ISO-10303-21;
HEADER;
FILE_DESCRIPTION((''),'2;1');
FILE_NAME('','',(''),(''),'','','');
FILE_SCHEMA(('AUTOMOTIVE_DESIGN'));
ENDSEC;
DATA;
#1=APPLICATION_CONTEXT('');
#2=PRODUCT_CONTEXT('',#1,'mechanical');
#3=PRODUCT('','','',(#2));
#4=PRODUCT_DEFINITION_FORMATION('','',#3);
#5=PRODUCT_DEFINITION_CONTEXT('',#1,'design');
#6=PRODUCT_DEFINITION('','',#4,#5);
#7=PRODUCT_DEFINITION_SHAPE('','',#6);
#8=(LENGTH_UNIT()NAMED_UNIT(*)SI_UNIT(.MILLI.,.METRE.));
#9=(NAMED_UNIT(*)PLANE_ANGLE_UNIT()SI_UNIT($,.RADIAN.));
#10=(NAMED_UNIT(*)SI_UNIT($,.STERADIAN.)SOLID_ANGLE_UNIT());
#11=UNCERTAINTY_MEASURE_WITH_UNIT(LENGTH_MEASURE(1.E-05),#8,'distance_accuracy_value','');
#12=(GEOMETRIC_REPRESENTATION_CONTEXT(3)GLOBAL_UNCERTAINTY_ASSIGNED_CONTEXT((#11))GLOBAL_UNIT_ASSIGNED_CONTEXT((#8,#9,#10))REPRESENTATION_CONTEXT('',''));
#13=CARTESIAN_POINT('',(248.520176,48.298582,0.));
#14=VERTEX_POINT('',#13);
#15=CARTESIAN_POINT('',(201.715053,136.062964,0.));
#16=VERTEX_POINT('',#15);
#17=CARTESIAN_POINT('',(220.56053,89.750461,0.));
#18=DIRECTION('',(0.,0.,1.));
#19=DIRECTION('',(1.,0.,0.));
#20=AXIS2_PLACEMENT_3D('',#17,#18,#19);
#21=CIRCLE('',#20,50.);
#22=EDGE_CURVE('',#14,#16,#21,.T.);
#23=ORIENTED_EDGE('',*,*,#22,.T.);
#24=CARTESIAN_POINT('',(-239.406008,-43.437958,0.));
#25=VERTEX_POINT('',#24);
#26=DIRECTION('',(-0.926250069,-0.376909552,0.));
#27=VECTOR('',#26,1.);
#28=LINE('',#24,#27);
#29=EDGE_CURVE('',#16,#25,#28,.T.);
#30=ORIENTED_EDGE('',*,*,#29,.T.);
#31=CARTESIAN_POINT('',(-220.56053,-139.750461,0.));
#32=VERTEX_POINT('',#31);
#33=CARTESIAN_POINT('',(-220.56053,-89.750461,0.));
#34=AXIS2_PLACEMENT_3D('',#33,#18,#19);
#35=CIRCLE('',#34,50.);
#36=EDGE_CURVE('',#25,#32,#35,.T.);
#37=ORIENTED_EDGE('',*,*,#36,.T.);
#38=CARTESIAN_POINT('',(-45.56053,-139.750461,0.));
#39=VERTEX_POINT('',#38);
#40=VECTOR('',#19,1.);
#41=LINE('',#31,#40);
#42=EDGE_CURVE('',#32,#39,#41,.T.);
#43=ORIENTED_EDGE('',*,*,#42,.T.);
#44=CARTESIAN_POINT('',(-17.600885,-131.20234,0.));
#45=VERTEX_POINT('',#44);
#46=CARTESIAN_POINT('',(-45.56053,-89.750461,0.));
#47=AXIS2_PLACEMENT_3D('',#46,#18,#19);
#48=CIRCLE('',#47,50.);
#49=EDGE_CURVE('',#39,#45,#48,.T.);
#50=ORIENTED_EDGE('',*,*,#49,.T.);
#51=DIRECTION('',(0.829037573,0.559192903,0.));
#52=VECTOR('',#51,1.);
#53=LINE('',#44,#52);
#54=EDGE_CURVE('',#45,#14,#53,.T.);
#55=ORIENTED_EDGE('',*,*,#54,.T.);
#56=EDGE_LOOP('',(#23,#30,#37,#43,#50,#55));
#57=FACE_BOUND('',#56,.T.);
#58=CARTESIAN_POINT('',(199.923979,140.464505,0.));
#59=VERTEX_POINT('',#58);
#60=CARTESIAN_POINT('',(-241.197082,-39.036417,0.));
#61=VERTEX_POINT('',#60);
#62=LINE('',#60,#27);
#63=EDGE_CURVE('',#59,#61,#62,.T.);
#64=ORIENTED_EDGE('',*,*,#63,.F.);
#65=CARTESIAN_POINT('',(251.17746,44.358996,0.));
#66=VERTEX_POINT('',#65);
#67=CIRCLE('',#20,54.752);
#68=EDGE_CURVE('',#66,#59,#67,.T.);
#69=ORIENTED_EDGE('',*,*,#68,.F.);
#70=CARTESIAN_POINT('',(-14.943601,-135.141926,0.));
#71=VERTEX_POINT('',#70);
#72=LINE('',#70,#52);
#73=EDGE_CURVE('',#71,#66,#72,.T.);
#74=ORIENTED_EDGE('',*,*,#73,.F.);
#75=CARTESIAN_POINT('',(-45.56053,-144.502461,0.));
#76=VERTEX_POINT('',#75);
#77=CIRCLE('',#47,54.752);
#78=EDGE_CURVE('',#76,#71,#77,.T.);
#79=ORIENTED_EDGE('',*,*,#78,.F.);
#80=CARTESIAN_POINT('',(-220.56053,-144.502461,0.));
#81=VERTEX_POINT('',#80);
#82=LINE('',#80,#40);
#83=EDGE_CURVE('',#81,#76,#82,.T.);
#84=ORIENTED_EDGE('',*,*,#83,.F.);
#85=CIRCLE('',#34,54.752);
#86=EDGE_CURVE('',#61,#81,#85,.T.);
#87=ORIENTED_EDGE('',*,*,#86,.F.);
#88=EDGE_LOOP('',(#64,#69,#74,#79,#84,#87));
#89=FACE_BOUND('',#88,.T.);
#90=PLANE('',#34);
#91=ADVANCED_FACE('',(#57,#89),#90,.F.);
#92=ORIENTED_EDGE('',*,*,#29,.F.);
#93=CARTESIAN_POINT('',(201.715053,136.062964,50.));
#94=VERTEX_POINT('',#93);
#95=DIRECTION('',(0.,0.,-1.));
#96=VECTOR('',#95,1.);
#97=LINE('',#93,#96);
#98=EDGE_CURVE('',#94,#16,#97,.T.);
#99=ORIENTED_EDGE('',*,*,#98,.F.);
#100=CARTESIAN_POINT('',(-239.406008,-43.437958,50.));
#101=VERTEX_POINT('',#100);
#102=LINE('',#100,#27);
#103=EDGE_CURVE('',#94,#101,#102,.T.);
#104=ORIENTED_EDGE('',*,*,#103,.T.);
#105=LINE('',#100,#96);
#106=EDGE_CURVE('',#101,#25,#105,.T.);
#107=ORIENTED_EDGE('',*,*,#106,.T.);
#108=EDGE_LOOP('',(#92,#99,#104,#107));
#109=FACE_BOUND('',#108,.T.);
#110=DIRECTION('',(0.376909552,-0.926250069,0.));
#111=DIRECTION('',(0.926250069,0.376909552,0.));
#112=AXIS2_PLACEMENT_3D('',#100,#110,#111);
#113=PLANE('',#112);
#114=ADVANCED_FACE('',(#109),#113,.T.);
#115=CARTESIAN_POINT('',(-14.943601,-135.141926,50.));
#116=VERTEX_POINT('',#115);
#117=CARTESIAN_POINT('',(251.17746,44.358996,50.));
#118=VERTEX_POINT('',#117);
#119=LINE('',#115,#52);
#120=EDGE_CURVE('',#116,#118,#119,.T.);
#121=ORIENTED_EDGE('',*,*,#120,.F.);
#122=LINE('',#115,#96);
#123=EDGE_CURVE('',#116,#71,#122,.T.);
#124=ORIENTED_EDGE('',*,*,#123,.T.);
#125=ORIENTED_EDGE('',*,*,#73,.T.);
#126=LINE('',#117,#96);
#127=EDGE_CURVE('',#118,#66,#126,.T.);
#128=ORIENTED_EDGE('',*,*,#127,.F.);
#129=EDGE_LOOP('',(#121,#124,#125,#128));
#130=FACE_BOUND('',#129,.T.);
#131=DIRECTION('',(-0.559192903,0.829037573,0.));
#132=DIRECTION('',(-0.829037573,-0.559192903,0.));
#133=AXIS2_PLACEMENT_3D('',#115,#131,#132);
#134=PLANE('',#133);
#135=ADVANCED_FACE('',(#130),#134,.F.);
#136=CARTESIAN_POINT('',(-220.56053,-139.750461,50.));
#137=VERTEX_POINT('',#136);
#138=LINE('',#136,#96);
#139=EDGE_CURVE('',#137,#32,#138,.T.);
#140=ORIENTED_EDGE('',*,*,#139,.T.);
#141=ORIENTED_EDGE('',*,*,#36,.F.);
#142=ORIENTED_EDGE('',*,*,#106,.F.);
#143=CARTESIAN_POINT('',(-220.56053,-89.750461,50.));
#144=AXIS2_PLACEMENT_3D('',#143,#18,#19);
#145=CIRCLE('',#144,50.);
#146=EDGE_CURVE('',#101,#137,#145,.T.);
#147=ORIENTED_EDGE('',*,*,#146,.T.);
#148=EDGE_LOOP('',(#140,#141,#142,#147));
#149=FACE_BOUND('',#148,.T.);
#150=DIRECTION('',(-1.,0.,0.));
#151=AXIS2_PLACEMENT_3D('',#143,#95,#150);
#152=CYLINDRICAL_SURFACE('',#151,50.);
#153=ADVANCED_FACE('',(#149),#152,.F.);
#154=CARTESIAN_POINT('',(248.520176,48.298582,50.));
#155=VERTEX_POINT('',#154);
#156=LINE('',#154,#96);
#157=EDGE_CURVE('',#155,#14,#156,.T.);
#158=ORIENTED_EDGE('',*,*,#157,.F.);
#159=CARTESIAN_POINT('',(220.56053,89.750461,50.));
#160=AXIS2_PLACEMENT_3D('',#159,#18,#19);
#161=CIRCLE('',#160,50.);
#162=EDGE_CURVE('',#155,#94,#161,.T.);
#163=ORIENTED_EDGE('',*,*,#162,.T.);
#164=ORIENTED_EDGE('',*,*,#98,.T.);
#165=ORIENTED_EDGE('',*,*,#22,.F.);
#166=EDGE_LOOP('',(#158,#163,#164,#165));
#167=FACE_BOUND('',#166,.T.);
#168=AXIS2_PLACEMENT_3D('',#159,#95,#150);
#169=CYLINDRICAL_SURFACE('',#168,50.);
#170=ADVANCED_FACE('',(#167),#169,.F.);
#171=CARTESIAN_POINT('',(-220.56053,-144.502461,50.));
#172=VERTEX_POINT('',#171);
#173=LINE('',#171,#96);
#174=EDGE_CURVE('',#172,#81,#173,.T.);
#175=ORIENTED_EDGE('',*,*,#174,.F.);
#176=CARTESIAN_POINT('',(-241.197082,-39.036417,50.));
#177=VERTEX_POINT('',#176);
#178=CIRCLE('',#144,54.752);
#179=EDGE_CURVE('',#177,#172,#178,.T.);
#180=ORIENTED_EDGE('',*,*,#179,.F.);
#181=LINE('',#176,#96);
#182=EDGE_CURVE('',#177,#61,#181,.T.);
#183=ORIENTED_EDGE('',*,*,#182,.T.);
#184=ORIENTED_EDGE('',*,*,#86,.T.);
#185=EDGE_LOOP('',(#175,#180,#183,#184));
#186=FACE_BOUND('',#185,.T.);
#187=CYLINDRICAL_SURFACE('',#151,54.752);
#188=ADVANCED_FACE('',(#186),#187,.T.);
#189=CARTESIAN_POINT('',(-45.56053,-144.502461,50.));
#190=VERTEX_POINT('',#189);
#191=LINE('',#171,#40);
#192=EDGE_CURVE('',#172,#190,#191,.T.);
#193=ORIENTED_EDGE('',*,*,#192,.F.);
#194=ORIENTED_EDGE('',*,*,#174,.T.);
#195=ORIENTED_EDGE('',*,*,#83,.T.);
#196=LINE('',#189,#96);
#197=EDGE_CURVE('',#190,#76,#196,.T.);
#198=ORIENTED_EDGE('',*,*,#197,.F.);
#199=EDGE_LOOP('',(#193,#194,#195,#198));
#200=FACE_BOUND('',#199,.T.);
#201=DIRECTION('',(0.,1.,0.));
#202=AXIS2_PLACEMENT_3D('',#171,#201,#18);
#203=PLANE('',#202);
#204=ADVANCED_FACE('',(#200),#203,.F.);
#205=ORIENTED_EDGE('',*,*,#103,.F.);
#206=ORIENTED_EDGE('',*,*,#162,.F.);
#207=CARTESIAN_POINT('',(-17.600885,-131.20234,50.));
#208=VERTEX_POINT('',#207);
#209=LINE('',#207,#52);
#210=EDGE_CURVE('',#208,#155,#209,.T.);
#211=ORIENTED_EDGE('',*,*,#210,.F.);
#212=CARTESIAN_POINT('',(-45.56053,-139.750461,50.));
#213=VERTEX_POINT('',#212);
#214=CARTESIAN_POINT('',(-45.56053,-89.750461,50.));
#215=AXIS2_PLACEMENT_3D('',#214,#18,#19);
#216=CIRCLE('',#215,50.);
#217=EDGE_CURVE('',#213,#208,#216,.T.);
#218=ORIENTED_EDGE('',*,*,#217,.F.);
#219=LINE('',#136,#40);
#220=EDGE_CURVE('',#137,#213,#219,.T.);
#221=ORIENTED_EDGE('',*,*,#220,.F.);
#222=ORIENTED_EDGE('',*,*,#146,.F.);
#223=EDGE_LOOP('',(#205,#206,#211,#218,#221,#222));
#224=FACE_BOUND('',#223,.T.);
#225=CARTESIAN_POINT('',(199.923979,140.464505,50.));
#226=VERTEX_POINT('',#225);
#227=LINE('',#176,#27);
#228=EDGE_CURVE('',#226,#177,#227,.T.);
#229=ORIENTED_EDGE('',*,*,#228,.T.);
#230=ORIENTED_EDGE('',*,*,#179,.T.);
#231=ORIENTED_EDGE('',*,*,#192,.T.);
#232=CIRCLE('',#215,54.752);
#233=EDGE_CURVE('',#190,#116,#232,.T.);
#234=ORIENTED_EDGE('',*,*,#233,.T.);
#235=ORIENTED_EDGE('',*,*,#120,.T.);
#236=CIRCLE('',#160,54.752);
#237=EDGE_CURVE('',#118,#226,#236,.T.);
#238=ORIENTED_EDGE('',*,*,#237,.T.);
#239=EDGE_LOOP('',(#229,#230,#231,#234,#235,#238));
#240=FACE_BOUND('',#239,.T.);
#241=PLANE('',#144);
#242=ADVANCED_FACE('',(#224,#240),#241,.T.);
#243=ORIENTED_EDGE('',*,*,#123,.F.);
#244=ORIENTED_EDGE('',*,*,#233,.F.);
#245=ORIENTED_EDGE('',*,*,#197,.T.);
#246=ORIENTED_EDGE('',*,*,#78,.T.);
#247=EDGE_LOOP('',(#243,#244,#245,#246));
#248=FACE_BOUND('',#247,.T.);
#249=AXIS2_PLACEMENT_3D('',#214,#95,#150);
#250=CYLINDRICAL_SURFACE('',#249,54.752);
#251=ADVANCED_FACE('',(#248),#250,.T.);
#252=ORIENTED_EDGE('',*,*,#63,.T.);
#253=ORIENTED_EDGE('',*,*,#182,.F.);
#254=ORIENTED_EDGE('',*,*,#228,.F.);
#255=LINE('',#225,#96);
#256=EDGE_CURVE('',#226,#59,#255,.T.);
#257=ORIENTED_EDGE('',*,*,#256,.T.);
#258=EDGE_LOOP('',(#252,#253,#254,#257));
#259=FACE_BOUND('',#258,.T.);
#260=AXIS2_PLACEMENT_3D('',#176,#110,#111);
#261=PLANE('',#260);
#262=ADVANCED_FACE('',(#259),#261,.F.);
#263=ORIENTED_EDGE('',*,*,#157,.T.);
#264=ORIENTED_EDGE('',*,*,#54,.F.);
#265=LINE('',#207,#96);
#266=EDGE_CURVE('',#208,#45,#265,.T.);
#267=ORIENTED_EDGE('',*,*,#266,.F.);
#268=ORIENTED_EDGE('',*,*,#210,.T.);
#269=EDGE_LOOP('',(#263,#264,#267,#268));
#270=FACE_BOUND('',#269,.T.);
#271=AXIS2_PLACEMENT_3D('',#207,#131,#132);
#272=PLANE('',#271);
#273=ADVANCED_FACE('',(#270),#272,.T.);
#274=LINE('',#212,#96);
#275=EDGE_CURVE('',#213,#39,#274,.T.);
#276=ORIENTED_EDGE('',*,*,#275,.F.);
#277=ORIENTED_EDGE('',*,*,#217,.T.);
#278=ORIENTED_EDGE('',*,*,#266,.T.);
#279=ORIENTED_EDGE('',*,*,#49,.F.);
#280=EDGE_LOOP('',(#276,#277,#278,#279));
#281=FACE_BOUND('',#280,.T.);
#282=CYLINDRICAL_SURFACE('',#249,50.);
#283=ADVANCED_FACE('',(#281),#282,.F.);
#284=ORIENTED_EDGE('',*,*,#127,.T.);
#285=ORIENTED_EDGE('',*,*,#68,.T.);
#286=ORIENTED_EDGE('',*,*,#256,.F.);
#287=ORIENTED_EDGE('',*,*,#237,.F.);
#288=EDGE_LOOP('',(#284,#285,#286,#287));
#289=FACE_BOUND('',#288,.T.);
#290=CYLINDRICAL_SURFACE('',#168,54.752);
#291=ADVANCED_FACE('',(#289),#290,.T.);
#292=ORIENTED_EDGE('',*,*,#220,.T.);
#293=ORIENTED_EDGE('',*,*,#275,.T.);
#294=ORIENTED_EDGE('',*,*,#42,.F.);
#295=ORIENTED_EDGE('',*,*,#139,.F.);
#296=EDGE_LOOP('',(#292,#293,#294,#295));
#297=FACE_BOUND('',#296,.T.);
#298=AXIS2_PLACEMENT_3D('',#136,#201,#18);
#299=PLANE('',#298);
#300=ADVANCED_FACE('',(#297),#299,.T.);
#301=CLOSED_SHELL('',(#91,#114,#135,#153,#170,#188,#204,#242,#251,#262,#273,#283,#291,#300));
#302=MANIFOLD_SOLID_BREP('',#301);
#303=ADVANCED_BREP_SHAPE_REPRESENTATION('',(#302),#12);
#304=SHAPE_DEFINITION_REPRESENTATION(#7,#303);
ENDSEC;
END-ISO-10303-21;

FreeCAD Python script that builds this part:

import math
import FreeCAD as App
import Part
import Sketcher

V = App.Vector
Q = App.Units.Quantity

doc = App.newDocument("Part")
body = doc.addObject("PartDesign::Body", "Body")

sketch1 = doc.addObject("Sketcher::SketchObject", "Sketch")
body.addObject(sketch1)
sketch1.AttachmentSupport = (doc.XY_Plane, [""])
sketch1.MapMode = "FlatFace"
sketch1.addGeometry(Part.LineSegment(V(200, 140, 0), V(-241, -39, 0)), False)
sketch1.addGeometry(Part.ArcOfCircle(Part.Circle(V(-221, -90, 0), V(0, 0, 1), 55), math.radians(112), math.radians(270)), False)
sketch1.addGeometry(Part.LineSegment(V(-221, -145, 0), V(-46, -145, 0)), False)
sketch1.addGeometry(Part.ArcOfCircle(Part.Circle(V(-46, -90, 0), V(0, 0, 1), 55), math.radians(-90), math.radians(-56)), False)
sketch1.addGeometry(Part.LineSegment(V(-15, -135, 0), V(251, 44, 0)), False)
sketch1.addGeometry(Part.ArcOfCircle(Part.Circle(V(221, 90, 0), V(0, 0, 1), 55), math.radians(-56), math.radians(112)), False)
sketch1.addGeometry(Part.ArcOfCircle(Part.Circle(V(-221, -90, 0), V(0, 0, 1), 50), math.radians(112), math.radians(270)), False)
sketch1.addGeometry(Part.LineSegment(V(-239, -43, 0), V(202, 136, 0)), False)
sketch1.addGeometry(Part.ArcOfCircle(Part.Circle(V(221, 90, 0), V(0, 0, 1), 50), math.radians(-56), math.radians(112)), False)
sketch1.addGeometry(Part.LineSegment(V(249, 48, 0), V(-18, -131, 0)), False)
sketch1.addGeometry(Part.ArcOfCircle(Part.Circle(V(-46, -90, 0), V(0, 0, 1), 50), math.radians(-90), math.radians(-56)), False)
sketch1.addGeometry(Part.LineSegment(V(-46, -140, 0), V(-221, -140, 0)), False)
sketch1.addConstraint(Sketcher.Constraint("Tangent", 0, 2, 1, 1))
sketch1.addConstraint(Sketcher.Constraint("Tangent", 1, 2, 2, 1))
sketch1.addConstraint(Sketcher.Constraint("Tangent", 2, 2, 3, 1))
sketch1.addConstraint(Sketcher.Constraint("Tangent", 3, 2, 4, 1))
sketch1.addConstraint(Sketcher.Constraint("Tangent", 4, 2, 5, 1))
sketch1.addConstraint(Sketcher.Constraint("Tangent", 5, 2, 0, 1))
sketch1.addConstraint(Sketcher.Constraint("Tangent", 6, 1, 7, 1))
sketch1.addConstraint(Sketcher.Constraint("Tangent", 7, 2, 8, 2))
sketch1.addConstraint(Sketcher.Constraint("Tangent", 8, 1, 9, 1))
sketch1.addConstraint(Sketcher.Constraint("Tangent", 9, 2, 10, 2))
sketch1.addConstraint(Sketcher.Constraint("Tangent", 10, 1, 11, 1))
sketch1.addConstraint(Sketcher.Constraint("Tangent", 11, 2, 6, 2))
sketch1.addConstraint(Sketcher.Constraint("Horizontal", 2))
sketch1.addConstraint(Sketcher.Constraint("Horizontal", 11))
sketch1.addConstraint(Sketcher.Constraint("Coincident", 6, 3, 1, 3))
sketch1.addConstraint(Sketcher.Constraint("Coincident", 8, 3, 5, 3))
sketch1.addConstraint(Sketcher.Constraint("Coincident", 10, 3, 3, 3))
sketch1.addConstraint(Sketcher.Constraint("Equal", 1, 3))
sketch1.addConstraint(Sketcher.Constraint("Equal", 3, 5))
sketch1.addConstraint(Sketcher.Constraint("Equal", 6, 8))
sketch1.addConstraint(Sketcher.Constraint("Symmetric", 1, 3, 5, 3, -1, 1))
sketch1.addConstraint(Sketcher.Constraint("Radius", 6, 50.0))
sketch1.addConstraint(Sketcher.Constraint("DistanceX", 2, 1, 2, 2, 175.0))
sketch1.addConstraint(Sketcher.Constraint("Angle", 4, Q("34 deg")))
sketch1.addConstraint(Sketcher.Constraint("Distance", 4, 321.0))
sketch1.addConstraint(Sketcher.Constraint("Radius", 1, 54.752))
pad1 = doc.addObject("PartDesign::Pad", "Pad")
body.addObject(pad1)
pad1.Profile = sketch1
pad1.Length = 50

doc.recompute()
